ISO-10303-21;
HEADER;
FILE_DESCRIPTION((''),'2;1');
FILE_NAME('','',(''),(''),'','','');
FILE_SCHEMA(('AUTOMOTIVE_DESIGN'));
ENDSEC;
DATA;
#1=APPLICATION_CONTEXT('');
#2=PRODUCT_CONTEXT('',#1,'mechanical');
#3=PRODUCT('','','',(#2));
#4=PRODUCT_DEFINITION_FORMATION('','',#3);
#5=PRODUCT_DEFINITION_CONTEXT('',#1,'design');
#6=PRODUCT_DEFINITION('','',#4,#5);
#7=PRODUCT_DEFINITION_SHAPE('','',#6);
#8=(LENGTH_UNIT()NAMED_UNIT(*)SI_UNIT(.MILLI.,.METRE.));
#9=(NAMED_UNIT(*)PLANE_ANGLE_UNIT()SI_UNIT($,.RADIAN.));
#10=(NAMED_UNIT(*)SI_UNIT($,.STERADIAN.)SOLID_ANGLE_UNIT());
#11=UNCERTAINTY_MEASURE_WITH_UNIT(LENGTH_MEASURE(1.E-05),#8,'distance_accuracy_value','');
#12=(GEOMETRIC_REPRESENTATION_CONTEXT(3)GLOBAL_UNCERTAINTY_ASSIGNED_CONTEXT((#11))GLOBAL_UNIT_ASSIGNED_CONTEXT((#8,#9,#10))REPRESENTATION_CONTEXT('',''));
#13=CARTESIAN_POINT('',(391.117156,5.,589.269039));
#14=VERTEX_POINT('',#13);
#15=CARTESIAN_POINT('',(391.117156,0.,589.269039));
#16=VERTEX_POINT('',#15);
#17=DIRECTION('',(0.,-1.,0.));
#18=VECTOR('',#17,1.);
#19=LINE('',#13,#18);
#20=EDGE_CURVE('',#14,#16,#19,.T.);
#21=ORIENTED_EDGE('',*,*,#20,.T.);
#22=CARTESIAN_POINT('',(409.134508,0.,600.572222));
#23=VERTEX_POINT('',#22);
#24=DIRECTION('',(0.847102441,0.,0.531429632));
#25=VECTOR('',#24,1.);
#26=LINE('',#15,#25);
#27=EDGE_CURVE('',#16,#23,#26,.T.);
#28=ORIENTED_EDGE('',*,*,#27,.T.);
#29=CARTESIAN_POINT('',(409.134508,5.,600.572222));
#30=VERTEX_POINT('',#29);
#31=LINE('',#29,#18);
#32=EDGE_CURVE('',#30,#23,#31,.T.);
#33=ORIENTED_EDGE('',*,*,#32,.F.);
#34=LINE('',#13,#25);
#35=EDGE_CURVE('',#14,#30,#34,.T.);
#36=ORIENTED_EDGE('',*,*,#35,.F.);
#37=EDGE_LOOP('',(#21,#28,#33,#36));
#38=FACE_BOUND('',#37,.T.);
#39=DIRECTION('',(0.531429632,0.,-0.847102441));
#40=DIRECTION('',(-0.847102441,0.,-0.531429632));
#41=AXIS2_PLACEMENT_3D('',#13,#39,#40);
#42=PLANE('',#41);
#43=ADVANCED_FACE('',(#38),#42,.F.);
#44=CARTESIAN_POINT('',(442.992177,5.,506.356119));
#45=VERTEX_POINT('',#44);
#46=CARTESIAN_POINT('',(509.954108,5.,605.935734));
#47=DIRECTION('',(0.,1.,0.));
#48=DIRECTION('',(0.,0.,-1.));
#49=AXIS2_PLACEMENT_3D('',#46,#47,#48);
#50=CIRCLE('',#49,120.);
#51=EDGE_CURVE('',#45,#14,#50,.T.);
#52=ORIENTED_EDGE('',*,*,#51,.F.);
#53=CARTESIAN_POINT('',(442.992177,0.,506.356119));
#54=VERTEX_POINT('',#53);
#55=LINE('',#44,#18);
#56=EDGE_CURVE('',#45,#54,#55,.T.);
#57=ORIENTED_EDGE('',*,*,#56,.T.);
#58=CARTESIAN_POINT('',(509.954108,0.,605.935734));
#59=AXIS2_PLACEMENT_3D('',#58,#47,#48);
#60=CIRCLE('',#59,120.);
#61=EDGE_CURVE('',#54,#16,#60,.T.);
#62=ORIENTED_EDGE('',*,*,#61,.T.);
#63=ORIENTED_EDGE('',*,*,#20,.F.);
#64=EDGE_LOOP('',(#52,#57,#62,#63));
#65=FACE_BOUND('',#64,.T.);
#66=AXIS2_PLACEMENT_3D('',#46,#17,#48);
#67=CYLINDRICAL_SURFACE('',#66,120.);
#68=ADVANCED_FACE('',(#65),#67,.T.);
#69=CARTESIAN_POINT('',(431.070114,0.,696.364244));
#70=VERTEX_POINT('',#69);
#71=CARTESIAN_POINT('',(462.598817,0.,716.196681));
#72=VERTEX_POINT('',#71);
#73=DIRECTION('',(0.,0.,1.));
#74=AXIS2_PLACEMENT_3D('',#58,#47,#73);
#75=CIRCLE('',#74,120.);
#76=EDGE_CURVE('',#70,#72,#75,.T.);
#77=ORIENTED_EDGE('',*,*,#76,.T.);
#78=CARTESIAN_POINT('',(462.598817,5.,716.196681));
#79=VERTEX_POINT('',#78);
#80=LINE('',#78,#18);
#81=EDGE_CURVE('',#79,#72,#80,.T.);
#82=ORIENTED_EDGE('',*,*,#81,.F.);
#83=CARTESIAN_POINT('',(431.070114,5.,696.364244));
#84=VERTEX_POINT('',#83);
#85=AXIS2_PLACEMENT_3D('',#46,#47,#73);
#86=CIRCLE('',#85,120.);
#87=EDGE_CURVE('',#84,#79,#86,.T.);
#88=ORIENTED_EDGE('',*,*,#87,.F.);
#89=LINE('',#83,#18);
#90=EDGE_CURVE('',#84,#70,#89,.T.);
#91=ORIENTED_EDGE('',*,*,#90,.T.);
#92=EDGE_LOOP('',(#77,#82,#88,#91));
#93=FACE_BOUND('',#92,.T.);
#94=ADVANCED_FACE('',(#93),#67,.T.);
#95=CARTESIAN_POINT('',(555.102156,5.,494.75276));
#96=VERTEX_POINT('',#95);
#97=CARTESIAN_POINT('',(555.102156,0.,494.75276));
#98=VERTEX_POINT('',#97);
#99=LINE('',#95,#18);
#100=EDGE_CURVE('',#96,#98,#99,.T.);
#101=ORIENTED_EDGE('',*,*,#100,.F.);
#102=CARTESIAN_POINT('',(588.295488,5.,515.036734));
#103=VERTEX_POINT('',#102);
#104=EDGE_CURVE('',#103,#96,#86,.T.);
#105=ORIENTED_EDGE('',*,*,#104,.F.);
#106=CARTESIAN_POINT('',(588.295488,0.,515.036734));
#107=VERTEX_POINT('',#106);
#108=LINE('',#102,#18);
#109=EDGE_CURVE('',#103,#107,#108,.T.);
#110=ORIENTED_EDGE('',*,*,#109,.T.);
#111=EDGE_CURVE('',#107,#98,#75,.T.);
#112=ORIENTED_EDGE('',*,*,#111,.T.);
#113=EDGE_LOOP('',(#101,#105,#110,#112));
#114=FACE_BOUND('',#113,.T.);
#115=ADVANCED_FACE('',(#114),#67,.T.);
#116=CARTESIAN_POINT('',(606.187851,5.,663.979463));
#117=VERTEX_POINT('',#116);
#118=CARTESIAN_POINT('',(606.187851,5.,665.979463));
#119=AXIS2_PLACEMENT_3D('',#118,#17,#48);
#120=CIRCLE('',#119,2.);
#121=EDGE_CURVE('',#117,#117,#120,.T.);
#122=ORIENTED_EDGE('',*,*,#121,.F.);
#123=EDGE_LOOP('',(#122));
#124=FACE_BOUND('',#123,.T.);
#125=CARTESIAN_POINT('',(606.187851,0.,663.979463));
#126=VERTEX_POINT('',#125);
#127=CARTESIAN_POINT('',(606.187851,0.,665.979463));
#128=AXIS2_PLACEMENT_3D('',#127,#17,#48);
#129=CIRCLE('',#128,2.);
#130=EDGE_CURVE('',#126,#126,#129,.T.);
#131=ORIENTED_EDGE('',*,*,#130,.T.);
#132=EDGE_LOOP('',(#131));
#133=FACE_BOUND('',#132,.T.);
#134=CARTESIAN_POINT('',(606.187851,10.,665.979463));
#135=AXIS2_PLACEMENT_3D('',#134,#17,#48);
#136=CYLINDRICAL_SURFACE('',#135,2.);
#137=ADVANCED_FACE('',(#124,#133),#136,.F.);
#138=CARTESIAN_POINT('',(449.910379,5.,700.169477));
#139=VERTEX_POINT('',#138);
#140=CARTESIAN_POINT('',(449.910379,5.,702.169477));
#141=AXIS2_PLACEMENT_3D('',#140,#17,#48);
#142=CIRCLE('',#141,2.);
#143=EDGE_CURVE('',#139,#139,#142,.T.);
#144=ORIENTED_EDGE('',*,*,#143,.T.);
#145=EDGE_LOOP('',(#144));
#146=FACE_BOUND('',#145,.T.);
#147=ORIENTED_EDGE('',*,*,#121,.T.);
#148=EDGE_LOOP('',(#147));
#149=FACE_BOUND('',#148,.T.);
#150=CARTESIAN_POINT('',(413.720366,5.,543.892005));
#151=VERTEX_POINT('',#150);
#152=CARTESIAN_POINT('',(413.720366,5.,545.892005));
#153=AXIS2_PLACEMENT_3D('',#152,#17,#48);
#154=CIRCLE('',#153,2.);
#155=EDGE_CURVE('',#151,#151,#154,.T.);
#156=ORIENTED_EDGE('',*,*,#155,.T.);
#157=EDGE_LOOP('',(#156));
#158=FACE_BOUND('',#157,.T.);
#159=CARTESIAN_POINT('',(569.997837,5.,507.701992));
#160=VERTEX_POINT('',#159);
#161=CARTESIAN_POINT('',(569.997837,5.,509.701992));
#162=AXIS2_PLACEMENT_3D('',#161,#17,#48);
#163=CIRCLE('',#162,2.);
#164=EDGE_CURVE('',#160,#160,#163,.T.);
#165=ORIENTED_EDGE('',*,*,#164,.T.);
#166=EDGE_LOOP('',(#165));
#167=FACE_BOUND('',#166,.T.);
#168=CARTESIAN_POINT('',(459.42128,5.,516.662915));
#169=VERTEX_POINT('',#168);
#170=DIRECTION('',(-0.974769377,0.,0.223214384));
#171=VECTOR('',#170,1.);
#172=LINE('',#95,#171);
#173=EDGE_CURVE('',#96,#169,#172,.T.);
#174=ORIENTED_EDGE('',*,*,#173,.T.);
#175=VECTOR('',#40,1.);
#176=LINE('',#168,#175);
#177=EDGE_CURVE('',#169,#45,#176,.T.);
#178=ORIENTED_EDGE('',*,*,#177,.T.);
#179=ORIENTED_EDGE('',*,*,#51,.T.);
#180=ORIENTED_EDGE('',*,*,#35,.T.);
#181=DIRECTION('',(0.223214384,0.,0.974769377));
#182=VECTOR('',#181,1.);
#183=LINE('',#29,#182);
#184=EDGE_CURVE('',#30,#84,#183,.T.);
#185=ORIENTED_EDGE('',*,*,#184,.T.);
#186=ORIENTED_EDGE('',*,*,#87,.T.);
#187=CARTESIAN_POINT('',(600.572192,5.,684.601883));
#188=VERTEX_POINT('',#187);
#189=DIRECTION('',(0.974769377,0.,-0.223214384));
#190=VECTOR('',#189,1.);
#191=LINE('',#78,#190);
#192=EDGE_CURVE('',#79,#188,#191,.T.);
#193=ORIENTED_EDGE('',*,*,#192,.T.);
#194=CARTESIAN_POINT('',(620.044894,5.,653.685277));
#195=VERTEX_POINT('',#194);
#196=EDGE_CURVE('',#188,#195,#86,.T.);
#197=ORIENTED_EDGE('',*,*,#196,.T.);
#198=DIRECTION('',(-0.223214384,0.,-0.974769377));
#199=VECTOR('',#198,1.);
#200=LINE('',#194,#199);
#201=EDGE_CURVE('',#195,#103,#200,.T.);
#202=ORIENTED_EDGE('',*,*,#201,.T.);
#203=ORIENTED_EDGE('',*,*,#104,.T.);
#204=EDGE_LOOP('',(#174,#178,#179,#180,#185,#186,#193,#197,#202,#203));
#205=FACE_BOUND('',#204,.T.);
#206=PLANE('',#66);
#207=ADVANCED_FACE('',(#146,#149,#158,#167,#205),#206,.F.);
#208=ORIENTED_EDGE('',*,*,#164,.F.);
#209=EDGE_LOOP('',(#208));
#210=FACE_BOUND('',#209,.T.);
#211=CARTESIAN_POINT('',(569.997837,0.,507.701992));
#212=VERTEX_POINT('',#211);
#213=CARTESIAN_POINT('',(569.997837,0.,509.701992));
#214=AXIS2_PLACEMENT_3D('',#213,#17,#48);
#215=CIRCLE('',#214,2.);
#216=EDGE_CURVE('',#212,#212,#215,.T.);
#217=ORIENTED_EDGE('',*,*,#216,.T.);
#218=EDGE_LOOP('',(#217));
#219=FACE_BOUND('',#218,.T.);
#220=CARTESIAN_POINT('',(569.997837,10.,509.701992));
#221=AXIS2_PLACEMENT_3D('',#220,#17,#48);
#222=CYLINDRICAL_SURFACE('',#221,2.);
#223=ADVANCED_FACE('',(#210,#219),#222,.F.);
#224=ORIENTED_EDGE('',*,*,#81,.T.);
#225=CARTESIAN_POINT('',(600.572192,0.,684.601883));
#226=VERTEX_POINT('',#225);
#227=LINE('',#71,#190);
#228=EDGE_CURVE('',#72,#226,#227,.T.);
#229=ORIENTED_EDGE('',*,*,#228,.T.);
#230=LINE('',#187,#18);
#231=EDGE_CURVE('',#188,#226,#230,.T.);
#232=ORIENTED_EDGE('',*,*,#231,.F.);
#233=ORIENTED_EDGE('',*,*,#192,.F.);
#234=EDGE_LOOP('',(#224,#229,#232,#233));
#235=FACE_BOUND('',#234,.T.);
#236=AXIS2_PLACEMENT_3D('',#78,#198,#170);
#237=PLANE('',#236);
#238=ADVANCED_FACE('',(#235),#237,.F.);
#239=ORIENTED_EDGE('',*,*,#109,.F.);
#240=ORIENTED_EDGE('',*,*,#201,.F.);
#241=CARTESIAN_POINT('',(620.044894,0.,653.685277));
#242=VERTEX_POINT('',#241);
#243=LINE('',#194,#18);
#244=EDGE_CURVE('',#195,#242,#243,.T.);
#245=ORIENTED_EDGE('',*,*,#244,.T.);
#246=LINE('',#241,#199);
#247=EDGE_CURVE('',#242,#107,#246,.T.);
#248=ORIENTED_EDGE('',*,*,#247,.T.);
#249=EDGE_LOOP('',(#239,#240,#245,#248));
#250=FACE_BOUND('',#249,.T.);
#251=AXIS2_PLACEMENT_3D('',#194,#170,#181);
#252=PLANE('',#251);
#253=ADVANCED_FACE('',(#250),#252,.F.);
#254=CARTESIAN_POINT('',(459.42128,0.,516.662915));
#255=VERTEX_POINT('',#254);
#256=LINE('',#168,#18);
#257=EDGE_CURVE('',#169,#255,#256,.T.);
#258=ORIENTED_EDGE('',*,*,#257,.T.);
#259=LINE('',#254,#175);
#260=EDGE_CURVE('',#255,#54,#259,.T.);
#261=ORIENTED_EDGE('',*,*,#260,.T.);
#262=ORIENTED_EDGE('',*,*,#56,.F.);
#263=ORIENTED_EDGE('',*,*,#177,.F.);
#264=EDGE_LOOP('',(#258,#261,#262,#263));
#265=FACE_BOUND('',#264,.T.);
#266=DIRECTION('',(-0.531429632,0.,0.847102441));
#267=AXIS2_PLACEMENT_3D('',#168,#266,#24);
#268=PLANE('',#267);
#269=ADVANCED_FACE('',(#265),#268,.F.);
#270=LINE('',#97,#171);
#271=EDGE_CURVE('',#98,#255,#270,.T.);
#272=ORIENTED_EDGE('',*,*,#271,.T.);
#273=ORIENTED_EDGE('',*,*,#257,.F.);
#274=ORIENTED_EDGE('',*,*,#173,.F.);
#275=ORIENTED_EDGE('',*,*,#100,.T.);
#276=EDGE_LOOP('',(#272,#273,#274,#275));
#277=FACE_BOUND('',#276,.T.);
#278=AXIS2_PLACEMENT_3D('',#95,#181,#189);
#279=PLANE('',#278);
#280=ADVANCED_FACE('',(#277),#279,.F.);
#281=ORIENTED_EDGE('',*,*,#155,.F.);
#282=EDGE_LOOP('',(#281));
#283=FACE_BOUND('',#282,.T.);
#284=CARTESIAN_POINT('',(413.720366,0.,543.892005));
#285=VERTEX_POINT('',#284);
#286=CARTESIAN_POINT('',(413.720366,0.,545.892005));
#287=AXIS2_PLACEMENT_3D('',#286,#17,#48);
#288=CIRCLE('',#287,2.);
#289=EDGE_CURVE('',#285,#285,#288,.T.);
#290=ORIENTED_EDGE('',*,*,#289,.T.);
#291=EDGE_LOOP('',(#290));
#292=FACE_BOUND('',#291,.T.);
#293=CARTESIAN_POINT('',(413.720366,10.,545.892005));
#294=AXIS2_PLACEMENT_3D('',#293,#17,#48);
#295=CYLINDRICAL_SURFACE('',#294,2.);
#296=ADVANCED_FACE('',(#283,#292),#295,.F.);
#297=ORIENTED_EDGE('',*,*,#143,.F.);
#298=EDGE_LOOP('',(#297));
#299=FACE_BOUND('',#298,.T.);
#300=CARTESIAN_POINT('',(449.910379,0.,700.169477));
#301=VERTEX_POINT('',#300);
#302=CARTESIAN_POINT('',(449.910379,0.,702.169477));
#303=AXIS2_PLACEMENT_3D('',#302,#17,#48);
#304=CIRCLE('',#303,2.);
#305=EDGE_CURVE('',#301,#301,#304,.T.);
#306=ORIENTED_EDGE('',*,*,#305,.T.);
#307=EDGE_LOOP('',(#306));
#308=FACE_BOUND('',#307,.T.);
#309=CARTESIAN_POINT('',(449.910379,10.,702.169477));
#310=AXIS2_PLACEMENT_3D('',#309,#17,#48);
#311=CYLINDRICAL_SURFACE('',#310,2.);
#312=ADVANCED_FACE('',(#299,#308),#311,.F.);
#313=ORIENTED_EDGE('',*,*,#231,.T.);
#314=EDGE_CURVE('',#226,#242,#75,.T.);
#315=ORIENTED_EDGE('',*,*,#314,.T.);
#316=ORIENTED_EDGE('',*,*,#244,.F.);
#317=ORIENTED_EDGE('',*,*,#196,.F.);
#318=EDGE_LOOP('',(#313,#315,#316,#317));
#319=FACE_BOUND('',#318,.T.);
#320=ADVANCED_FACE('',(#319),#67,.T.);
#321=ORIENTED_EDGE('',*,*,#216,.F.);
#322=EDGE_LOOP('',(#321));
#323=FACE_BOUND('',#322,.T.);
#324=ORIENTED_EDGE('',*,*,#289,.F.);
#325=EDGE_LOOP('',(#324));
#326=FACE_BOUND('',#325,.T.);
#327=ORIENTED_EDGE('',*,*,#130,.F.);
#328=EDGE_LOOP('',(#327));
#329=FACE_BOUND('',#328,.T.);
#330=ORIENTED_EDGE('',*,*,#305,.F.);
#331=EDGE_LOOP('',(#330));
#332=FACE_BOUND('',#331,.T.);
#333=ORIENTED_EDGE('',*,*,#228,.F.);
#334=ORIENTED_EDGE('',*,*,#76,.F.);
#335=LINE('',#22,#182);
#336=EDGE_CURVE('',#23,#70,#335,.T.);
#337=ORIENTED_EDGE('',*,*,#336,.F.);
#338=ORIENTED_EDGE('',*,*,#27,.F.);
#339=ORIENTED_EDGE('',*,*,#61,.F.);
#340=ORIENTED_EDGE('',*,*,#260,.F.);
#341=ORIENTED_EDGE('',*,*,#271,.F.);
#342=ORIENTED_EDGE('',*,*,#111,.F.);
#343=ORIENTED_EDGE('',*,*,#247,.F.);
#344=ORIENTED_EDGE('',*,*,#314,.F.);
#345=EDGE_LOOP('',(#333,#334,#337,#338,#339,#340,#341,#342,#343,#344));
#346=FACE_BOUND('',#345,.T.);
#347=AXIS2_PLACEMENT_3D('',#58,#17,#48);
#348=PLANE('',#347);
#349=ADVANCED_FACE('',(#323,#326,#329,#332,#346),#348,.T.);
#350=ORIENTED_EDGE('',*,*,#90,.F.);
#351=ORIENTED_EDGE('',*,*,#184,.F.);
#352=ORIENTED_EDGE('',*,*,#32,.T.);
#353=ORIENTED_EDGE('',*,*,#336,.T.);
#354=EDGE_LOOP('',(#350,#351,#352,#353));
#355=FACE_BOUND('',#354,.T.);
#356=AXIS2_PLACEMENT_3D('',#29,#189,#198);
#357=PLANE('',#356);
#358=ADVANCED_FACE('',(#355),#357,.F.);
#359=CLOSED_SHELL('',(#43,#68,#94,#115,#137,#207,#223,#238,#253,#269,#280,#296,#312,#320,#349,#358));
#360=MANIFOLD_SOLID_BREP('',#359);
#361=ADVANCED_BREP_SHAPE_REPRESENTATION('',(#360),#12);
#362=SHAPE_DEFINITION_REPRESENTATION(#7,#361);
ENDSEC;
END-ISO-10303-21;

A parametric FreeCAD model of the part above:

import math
import FreeCAD as App
import Part
import Sketcher
from FreeCAD import Vector

doc = App.newDocument("Part")
body = doc.addObject("PartDesign::Body", "Body")

# Sketch on XZ plane
sketch1 = doc.addObject("Sketcher::SketchObject", "Sketch")
body.addObject(sketch1)
sketch1.AttachmentSupport = (doc.XZ_Plane, [""])
sketch1.MapMode = "FlatFace"
sketch1.addGeometry([
    Part.LineSegment(Vector(391, 589, 0), Vector(409, 601, 0)),  # 0
    Part.LineSegment(Vector(409, 601, 0), Vector(431, 696, 0)),  # 1
    Part.ArcOfCircle(Part.Circle(Vector(510, 606, 0), Vector(0, 0, 1), 120), math.radians(113.24), math.radians(131.1)),  # 2
    Part.LineSegment(Vector(463, 716, 0), Vector(601, 685, 0)),  # 3
    Part.ArcOfCircle(Part.Circle(Vector(510, 606, 0), Vector(0, 0, 1), 120), math.radians(23.45), math.radians(40.96)),  # 4
    Part.LineSegment(Vector(620, 654, 0), Vector(588, 515, 0)),  # 5
    Part.ArcOfCircle(Part.Circle(Vector(510, 606, 0), Vector(0, 0, 1), 120), math.radians(-67.9), math.radians(-49.24)),  # 6
    Part.LineSegment(Vector(555, 495, 0), Vector(459, 517, 0)),  # 7
    Part.LineSegment(Vector(459, 517, 0), Vector(443, 506, 0)),  # 8
    Part.ArcOfCircle(Part.Circle(Vector(510, 606, 0), Vector(0, 0, 1), 120), math.radians(-172), math.radians(-124)),  # 9
], False)
sketch1.addConstraint([
    Sketcher.Constraint("Coincident", 0, 2, 1, 1),
    Sketcher.Constraint("Coincident", 1, 2, 2, 2),
    Sketcher.Constraint("Coincident", 2, 1, 3, 1),
    Sketcher.Constraint("Coincident", 3, 2, 4, 2),
    Sketcher.Constraint("Coincident", 4, 1, 5, 1),
    Sketcher.Constraint("Coincident", 5, 2, 6, 2),
    Sketcher.Constraint("Coincident", 6, 1, 7, 1),
    Sketcher.Constraint("Coincident", 7, 2, 8, 1),
    Sketcher.Constraint("Coincident", 8, 2, 9, 2),
    Sketcher.Constraint("Coincident", 9, 1, 0, 1),
    Sketcher.Constraint("Coincident", 4, 3, 2, 3),
    Sketcher.Constraint("Coincident", 6, 3, 2, 3),
    Sketcher.Constraint("Coincident", 9, 3, 2, 3),
    Sketcher.Constraint("Equal", 2, 4),
    Sketcher.Constraint("Equal", 4, 6),
    Sketcher.Constraint("Equal", 6, 9),
    Sketcher.Constraint("Perpendicular", 1, 3),
    Sketcher.Constraint("Perpendicular", 3, 5),
    Sketcher.Constraint("Perpendicular", 5, 7),
    Sketcher.Constraint("Parallel", 0, 8),
    Sketcher.Constraint("Radius", 2, 120.0),
    Sketcher.Constraint("DistanceY", 5, 2, 4, 3, 90.899),
    Sketcher.Constraint("DistanceX", 0, 2, 2, 3, 100.819601),
    Sketcher.Constraint("DistanceY", 3, 2, 2, 1, 31.594798),
    Sketcher.Constraint("Distance", 0, 21.269389),
    Sketcher.Constraint("Distance", 5, 142.237278),
    Sketcher.Constraint("Distance", 7, 98.15745),
    Sketcher.Constraint("Distance", 8, 19.39447),
    Sketcher.Constraint("DistanceX", -1, 1, 2, 3, 509.954108),
    Sketcher.Constraint("DistanceY", -1, 1, 2, 1, 716.196681),
    Sketcher.Constraint("DistanceX", -1, 1, 7, 2, 459.42128),
])
pad1 = doc.addObject("PartDesign::Pad", "Pad")
body.addObject(pad1)
pad1.Profile = sketch1
pad1.Length = 5
pad1.Reversed = True

# Sketch on XZ plane
sketch2 = doc.addObject("Sketcher::SketchObject", "Sketch001")
body.addObject(sketch2)
sketch2.AttachmentSupport = (doc.XZ_Plane, [""])
sketch2.MapMode = "FlatFace"
sketch2.addGeometry([
    Part.Circle(Vector(449.9, 702.2, 0), Vector(0, 0, 1), 2),
    Part.Circle(Vector(413.7, 545.9, 0), Vector(0, 0, 1), 2),
    Part.Circle(Vector(570, 509.7, 0), Vector(0, 0, 1), 2),
    Part.Circle(Vector(606.2, 666, 0), Vector(0, 0, 1), 2),
], False)
sketch2.addConstraint([
    Sketcher.Constraint("Equal", 0, 1),
    Sketcher.Constraint("Equal", 1, 2),
    Sketcher.Constraint("Equal", 2, 3),
    Sketcher.Constraint("Diameter", 0, 4.0),
    Sketcher.Constraint("DistanceX", -1, 1, 0, 3, 449.910379),
    Sketcher.Constraint("DistanceX", -1, 1, 3, 3, 606.187851),
    Sketcher.Constraint("DistanceY", 1, 3, 0, 3, 156.277471),
    Sketcher.Constraint("DistanceX", 1, 3, 2, 3, 156.277471),
    Sketcher.Constraint("DistanceY", 2, 3, 3, 3, 156.277471),
    Sketcher.Constraint("DistanceY", -1, 1, 0, 3, 702.169477),
    Sketcher.Constraint("DistanceX", -1, 1, 1, 3, 413.720366),
    Sketcher.Constraint("DistanceY", -1, 1, 2, 3, 509.701992),
])
pocket1 = doc.addObject("PartDesign::Pocket", "Pocket")
body.addObject(pocket1)
pocket1.Profile = sketch2
pocket1.Length = 10

doc.recompute()
